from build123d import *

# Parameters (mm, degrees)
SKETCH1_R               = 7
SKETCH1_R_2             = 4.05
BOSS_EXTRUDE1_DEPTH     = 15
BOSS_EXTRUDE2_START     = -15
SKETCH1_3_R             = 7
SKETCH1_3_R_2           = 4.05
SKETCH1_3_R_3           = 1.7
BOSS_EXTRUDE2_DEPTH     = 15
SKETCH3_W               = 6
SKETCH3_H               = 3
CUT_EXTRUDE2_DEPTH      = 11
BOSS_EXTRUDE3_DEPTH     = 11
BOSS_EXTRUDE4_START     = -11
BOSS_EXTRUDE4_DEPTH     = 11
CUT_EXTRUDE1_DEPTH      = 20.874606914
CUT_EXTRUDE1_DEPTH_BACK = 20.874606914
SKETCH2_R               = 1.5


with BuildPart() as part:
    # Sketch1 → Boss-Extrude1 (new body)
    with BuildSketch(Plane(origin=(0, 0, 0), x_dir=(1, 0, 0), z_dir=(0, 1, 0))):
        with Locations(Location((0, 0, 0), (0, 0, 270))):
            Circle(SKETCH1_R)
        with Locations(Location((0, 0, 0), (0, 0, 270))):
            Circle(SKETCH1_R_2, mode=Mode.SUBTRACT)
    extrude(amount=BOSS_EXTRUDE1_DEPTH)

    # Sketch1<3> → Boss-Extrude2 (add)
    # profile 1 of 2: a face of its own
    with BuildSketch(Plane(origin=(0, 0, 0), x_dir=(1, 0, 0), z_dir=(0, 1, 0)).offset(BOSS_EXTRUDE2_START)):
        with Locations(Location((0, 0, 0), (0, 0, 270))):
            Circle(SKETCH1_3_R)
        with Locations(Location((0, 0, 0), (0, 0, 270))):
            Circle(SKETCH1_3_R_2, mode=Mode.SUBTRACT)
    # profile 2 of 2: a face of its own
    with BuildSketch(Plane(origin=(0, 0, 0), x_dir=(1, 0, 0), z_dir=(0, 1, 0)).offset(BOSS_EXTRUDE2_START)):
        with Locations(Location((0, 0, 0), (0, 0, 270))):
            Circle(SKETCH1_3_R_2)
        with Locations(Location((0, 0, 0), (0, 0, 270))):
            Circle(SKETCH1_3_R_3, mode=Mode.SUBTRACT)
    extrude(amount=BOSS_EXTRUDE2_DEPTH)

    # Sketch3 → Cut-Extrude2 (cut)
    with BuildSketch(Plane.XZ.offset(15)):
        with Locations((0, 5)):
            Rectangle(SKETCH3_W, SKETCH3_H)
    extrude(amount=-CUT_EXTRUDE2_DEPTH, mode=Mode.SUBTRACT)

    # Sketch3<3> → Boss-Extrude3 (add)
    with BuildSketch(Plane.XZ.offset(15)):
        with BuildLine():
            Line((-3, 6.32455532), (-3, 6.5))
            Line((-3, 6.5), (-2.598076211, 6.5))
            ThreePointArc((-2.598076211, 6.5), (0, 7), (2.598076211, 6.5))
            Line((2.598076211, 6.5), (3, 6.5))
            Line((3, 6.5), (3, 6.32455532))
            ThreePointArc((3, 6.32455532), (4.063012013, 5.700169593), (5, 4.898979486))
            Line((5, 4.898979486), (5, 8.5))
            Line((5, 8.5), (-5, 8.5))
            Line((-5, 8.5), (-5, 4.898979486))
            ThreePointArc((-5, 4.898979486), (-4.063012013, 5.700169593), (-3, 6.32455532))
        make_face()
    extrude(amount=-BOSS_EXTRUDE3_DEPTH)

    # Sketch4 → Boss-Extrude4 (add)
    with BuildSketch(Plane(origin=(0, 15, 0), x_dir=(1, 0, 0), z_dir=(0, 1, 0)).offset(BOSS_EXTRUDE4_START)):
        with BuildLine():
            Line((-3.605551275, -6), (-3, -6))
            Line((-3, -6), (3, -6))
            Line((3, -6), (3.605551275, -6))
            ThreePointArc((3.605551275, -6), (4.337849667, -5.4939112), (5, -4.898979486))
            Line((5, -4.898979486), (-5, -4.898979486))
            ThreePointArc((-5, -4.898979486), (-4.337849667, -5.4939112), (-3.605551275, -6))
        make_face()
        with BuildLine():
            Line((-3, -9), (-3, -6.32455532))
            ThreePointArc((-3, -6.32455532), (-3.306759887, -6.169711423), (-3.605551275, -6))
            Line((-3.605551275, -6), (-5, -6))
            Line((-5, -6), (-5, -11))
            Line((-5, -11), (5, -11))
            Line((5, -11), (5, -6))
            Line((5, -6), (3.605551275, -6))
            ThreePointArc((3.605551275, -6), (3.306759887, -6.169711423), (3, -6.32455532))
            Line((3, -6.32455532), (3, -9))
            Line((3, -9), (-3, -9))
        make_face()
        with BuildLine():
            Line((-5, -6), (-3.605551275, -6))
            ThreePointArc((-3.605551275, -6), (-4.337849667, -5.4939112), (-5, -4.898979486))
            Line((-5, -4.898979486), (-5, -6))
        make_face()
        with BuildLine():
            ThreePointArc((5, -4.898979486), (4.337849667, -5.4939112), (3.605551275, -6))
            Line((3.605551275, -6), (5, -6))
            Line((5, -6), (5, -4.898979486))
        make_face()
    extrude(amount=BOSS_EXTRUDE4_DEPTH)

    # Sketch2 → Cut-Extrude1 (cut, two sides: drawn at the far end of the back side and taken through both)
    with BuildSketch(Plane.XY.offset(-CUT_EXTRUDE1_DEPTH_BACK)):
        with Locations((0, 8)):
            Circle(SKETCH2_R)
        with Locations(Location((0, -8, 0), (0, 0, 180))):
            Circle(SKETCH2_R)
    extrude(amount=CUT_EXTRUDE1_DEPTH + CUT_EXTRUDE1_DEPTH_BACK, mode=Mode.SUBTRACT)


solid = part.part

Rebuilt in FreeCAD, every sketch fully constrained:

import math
import FreeCAD as App
import Part
import Sketcher

doc = App.newDocument("Part")
params = doc.addObject("Spreadsheet::Sheet", "Params")
for row, (alias, value) in enumerate([
    ("sketch1_diameter", "14 mm"),
    ("sketch1_diameter2", "8.1 mm"),
    ("pad1_length", "15 mm"),
    ("sketch2_diameter", "14 mm"),
    ("sketch2_diameter2", "3.4 mm"),
    ("pad2_length", "15 mm"),
    ("sketch3_width", "6 mm"),
    ("sketch3_height", "3 mm"),
    ("pocket1_length", "11 mm"),
    ("sketch4_radius", "7 mm"),
    ("sketch4_width", "10 mm"),
    ("pad3_length", "11 mm"),
    ("sketch5_radius", "7 mm"),
    ("sketch5_width", "10 mm"),
    ("sketch5_width2", "6 mm"),
    ("pad4_length", "11 mm"),
    ("sketch6_diameter", "3 mm"),
], start=1):
    params.set(f"A{row}", alias)
    params.set(f"B{row}", "=" + value)
    params.setAlias(f"B{row}", alias)

body = doc.addObject("PartDesign::Body", "Body")

sketch1 = doc.addObject("Sketcher::SketchObject", "Sketch")
body.addObject(sketch1)
sketch1.AttachmentSupport = (doc.XZ_Plane, [""])
sketch1.MapMode = "FlatFace"
sketch1.addGeometry([
    Part.Circle(App.Vector(0, 0, 0), App.Vector(0, 0, 1), 7),
    Part.Circle(App.Vector(0, 0, 0), App.Vector(0, 0, 1), 4.05),
], False)
sketch1.addConstraint([
    Sketcher.Constraint("Coincident", 0, 3, -1, 1),
    Sketcher.Constraint("Coincident", 1, 3, -1, 1),
    Sketcher.Constraint("Diameter", 0, 14.0),
    Sketcher.Constraint("Diameter", 1, 8.1),
])
sketch1.setExpression("Constraints[2]", "Params.sketch1_diameter")
sketch1.setExpression("Constraints[3]", "Params.sketch1_diameter2")
pad1 = doc.addObject("PartDesign::Pad", "Pad")
body.addObject(pad1)
pad1.Profile = sketch1
pad1.setExpression("Length", "Params.pad1_length")
pad1.Reversed = True

sketch2 = doc.addObject("Sketcher::SketchObject", "Sketch001")
body.addObject(sketch2)
sketch2.AttachmentSupport = (doc.XZ_Plane, [""])
sketch2.MapMode = "FlatFace"
sketch2.AttachmentOffset = App.Placement(App.Vector(0, 0, 15), App.Rotation())
sketch2.addGeometry([
    Part.Circle(App.Vector(0, 0, 0), App.Vector(0, 0, 1), 7),
    Part.Circle(App.Vector(0, 0, 0), App.Vector(0, 0, 1), 1.7),
], False)
sketch2.addConstraint([
    Sketcher.Constraint("Coincident", 0, 3, -1, 1),
    Sketcher.Constraint("Coincident", 1, 3, -1, 1),
    Sketcher.Constraint("Diameter", 0, 14.0),
    Sketcher.Constraint("Diameter", 1, 3.4),
])
sketch2.setExpression("Constraints[2]", "Params.sketch2_diameter")
sketch2.setExpression("Constraints[3]", "Params.sketch2_diameter2")
pad2 = doc.addObject("PartDesign::Pad", "Pad001")
body.addObject(pad2)
pad2.Profile = sketch2
pad2.setExpression("Length", "Params.pad2_length")
pad2.Reversed = True

sketch3 = doc.addObject("Sketcher::SketchObject", "Sketch002")
body.addObject(sketch3)
sketch3.AttachmentSupport = (doc.XZ_Plane, [""])
sketch3.MapMode = "FlatFace"
sketch3.AttachmentOffset = App.Placement(App.Vector(0, 0, 15), App.Rotation())
sketch3.addGeometry([
    Part.LineSegment(App.Vector(-3, 6.5, 0), App.Vector(-3, 3.5, 0)),
    Part.LineSegment(App.Vector(-3, 3.5, 0), App.Vector(3, 3.5, 0)),
    Part.LineSegment(App.Vector(3, 3.5, 0), App.Vector(3, 6.5, 0)),
    Part.LineSegment(App.Vector(3, 6.5, 0), App.Vector(-3, 6.5, 0)),
], False)
sketch3.addConstraint([
    Sketcher.Constraint("Coincident", 0, 2, 1, 1),
    Sketcher.Constraint("Coincident", 1, 2, 2, 1),
    Sketcher.Constraint("Coincident", 2, 2, 3, 1),
    Sketcher.Constraint("Coincident", 3, 2, 0, 1),
    Sketcher.Constraint("Vertical", 0),
    Sketcher.Constraint("Horizontal", 1),
    Sketcher.Constraint("Vertical", 2),
    Sketcher.Constraint("Horizontal", 3),
    Sketcher.Constraint("DistanceX", 1, 1, 1, 2, 6.0),
    Sketcher.Constraint("DistanceY", 0, 2, 0, 1, 3.0),
    Sketcher.Constraint("DistanceX", 0, 2, -1, 1, 3.0),
    Sketcher.Constraint("DistanceY", -1, 1, 0, 2, 3.5),
])
sketch3.setExpression("Constraints[8]", "Params.sketch3_width")
sketch3.setExpression("Constraints[9]", "Params.sketch3_height")
pocket1 = doc.addObject("PartDesign::Pocket", "Pocket")
body.addObject(pocket1)
pocket1.Profile = sketch3
pocket1.setExpression("Length", "Params.pocket1_length")

sketch4 = doc.addObject("Sketcher::SketchObject", "Sketch003")
body.addObject(sketch4)
sketch4.AttachmentSupport = (doc.XZ_Plane, [""])
sketch4.MapMode = "FlatFace"
sketch4.AttachmentOffset = App.Placement(App.Vector(0, 0, 15), App.Rotation())
sketch4.addGeometry([
    Part.LineSegment(App.Vector(-3, 6.324555, 0), App.Vector(-3, 6.5, 0)),
    Part.LineSegment(App.Vector(-3, 6.5, 0), App.Vector(-2.598076, 6.5, 0)),
    Part.ArcOfCircle(Part.Circle(App.Vector(0, 0, 0), App.Vector(0, 0, 1), 7), math.radians(68.213211), math.radians(111.786789)),
    Part.LineSegment(App.Vector(2.598076, 6.5, 0), App.Vector(3, 6.5, 0)),
    Part.LineSegment(App.Vector(3, 6.5, 0), App.Vector(3, 6.324555, 0)),
    Part.ArcOfCircle(Part.Circle(App.Vector(0, 0, 0), App.Vector(0, 0, 1), 7), math.radians(44.415309), math.radians(64.623067)),
    Part.LineSegment(App.Vector(5, 4.898979, 0), App.Vector(5, 8.5, 0)),
    Part.LineSegment(App.Vector(5, 8.5, 0), App.Vector(-5, 8.5, 0)),
    Part.LineSegment(App.Vector(-5, 8.5, 0), App.Vector(-5, 4.898979, 0)),
    Part.ArcOfCircle(Part.Circle(App.Vector(0, 0, 0), App.Vector(0, 0, 1), 7), math.radians(115.376933), math.radians(135.584691)),
], False)
sketch4.addConstraint([
    Sketcher.Constraint("Coincident", 0, 2, 1, 1),
    Sketcher.Constraint("Coincident", 1, 2, 2, 2),
    Sketcher.Constraint("Coincident", 2, 1, 3, 1),
    Sketcher.Constraint("Coincident", 3, 2, 4, 1),
    Sketcher.Constraint("Coincident", 4, 2, 5, 2),
    Sketcher.Constraint("Coincident", 5, 1, 6, 1),
    Sketcher.Constraint("Coincident", 6, 2, 7, 1),
    Sketcher.Constraint("Coincident", 7, 2, 8, 1),
    Sketcher.Constraint("Coincident", 8, 2, 9, 2),
    Sketcher.Constraint("Coincident", 9, 1, 0, 1),
    Sketcher.Constraint("Vertical", 0),
    Sketcher.Constraint("Horizontal", 1),
    Sketcher.Constraint("Horizontal", 3),
    Sketcher.Constraint("Vertical", 4),
    Sketcher.Constraint("Vertical", 6),
    Sketcher.Constraint("Horizontal", 7),
    Sketcher.Constraint("Vertical", 8),
    Sketcher.Constraint("Coincident", 2, 3, -1, 1),
    Sketcher.Constraint("Coincident", 5, 3, -1, 1),
    Sketcher.Constraint("Coincident", 9, 3, -1, 1),
    Sketcher.Constraint("Equal", 2, 5),
    Sketcher.Constraint("Equal", 5, 9),
    Sketcher.Constraint("Symmetric", 0, 2, 3, 2, -2),
    Sketcher.Constraint("Horizontal", 5, 1, 8, 2),
    Sketcher.Constraint("Radius", 2, 7.0),
    Sketcher.Constraint("DistanceX", 7, 2, 7, 1, 10.0),
    Sketcher.Constraint("DistanceX", 0, 2, -1, 1, 3.0),
    Sketcher.Constraint("DistanceY", 3, 2, 6, 2, 2.0),
    Sketcher.Constraint("DistanceY", -1, 1, 0, 2, 6.5),
])
sketch4.setExpression("Constraints[24]", "Params.sketch4_radius")
sketch4.setExpression("Constraints[25]", "Params.sketch4_width")
pad3 = doc.addObject("PartDesign::Pad", "Pad002")
body.addObject(pad3)
pad3.Profile = sketch4
pad3.setExpression("Length", "Params.pad3_length")
pad3.Reversed = True

sketch5 = doc.addObject("Sketcher::SketchObject", "Sketch004")
body.addObject(sketch5)
sketch5.AttachmentSupport = (doc.XZ_Plane, [""])
sketch5.MapMode = "FlatFace"
sketch5.AttachmentOffset = App.Placement(App.Vector(0, 0, -4), App.Rotation())
sketch5.addGeometry([
    Part.LineSegment(App.Vector(5, 11, 0), App.Vector(5, 4.898979, 0)),
    Part.LineSegment(App.Vector(5, 4.898979, 0), App.Vector(-5, 4.898979, 0)),
    Part.LineSegment(App.Vector(-5, 4.898979, 0), App.Vector(-5, 11, 0)),
    Part.LineSegment(App.Vector(-5, 11, 0), App.Vector(5, 11, 0)),
    Part.LineSegment(App.Vector(-3.605551, 6, 0), App.Vector(3.605551, 6, 0)),
    Part.ArcOfCircle(Part.Circle(App.Vector(0, 0, 0), App.Vector(0, 0, 1), 7), math.radians(58.997281), math.radians(64.623066)),
    Part.LineSegment(App.Vector(3, 6.324555, 0), App.Vector(3, 9, 0)),
    Part.LineSegment(App.Vector(3, 9, 0), App.Vector(-3, 9, 0)),
    Part.LineSegment(App.Vector(-3, 9, 0), App.Vector(-3, 6.324555, 0)),
    Part.ArcOfCircle(Part.Circle(App.Vector(0, 0, 0), App.Vector(0, 0, 1), 7), math.radians(115.376934), math.radians(121.002719)),
], False)
sketch5.addConstraint([
    Sketcher.Constraint("Coincident", 0, 2, 1, 1),
    Sketcher.Constraint("Coincident", 1, 2, 2, 1),
    Sketcher.Constraint("Coincident", 2, 2, 3, 1),
    Sketcher.Constraint("Coincident", 3, 2, 0, 1),
    Sketcher.Constraint("Coincident", 4, 2, 5, 1),
    Sketcher.Constraint("Coincident", 5, 2, 6, 1),
    Sketcher.Constraint("Coincident", 6, 2, 7, 1),
    Sketcher.Constraint("Coincident", 7, 2, 8, 1),
    Sketcher.Constraint("Coincident", 8, 2, 9, 1),
    Sketcher.Constraint("Coincident", 9, 2, 4, 1),
    Sketcher.Constraint("Vertical", 0),
    Sketcher.Constraint("Horizontal", 1),
    Sketcher.Constraint("Vertical", 2),
    Sketcher.Constraint("Horizontal", 3),
    Sketcher.Constraint("Horizontal", 4),
    Sketcher.Constraint("Vertical", 6),
    Sketcher.Constraint("Horizontal", 7),
    Sketcher.Constraint("Vertical", 8),
    Sketcher.Constraint("Coincident", 5, 3, -1, 1),
    Sketcher.Constraint("Coincident", 9, 3, -1, 1),
    Sketcher.Constraint("Equal", 5, 9),
    Sketcher.Constraint("Horizontal", 5, 2, 8, 2),
    Sketcher.Constraint("Radius", 5, 7.0),
    Sketcher.Constraint("DistanceX", 1, 2, 1, 1, 10.0),
    Sketcher.Constraint("DistanceX", 7, 2, 7, 1, 6.0),
    Sketcher.Constraint("DistanceX", -1, 1, 0, 2, 5.0),
    Sketcher.Constraint("DistanceY", -1, 1, 2, 2, 11.0),
    Sketcher.Constraint("DistanceY", -1, 1, 4, 2, 6.0),
    Sketcher.Constraint("DistanceY", -1, 1, 6, 2, 9.0),
    Sketcher.Constraint("DistanceY", 0, 2, 0, 1, 6.101021),
])
sketch5.setExpression("Constraints[22]", "Params.sketch5_radius")
sketch5.setExpression("Constraints[23]", "Params.sketch5_width")
sketch5.setExpression("Constraints[24]", "Params.sketch5_width2")
pad4 = doc.addObject("PartDesign::Pad", "Pad003")
body.addObject(pad4)
pad4.Profile = sketch5
pad4.setExpression("Length", "Params.pad4_length")
pad4.Reversed = True

sketch6 = doc.addObject("Sketcher::SketchObject", "Sketch005")
body.addObject(sketch6)
sketch6.AttachmentSupport = (doc.XY_Plane, [""])
sketch6.MapMode = "FlatFace"
sketch6.addGeometry([
    Part.Circle(App.Vector(0, 8, 0), App.Vector(0, 0, 1), 1.5),
    Part.Circle(App.Vector(0, -8, 0), App.Vector(0, 0, 1), 1.5),
], False)
sketch6.addConstraint([
    Sketcher.Constraint("Equal", 0, 1),
    Sketcher.Constraint("Symmetric", 0, 3, 1, 3, -1, 1),
    Sketcher.Constraint("PointOnObject", 0, 3, -2),
    Sketcher.Constraint("Diameter", 0, 3.0),
    Sketcher.Constraint("DistanceY", -1, 1, 0, 3, 8.0),
])
sketch6.setExpression("Constraints[3]", "Params.sketch6_diameter")
pocket2 = doc.addObject("PartDesign::Pocket", "Pocket001")
body.addObject(pocket2)
pocket2.Profile = sketch6
pocket2.Type = "ThroughAll"
pocket2.Midplane = True

doc.recompute()
